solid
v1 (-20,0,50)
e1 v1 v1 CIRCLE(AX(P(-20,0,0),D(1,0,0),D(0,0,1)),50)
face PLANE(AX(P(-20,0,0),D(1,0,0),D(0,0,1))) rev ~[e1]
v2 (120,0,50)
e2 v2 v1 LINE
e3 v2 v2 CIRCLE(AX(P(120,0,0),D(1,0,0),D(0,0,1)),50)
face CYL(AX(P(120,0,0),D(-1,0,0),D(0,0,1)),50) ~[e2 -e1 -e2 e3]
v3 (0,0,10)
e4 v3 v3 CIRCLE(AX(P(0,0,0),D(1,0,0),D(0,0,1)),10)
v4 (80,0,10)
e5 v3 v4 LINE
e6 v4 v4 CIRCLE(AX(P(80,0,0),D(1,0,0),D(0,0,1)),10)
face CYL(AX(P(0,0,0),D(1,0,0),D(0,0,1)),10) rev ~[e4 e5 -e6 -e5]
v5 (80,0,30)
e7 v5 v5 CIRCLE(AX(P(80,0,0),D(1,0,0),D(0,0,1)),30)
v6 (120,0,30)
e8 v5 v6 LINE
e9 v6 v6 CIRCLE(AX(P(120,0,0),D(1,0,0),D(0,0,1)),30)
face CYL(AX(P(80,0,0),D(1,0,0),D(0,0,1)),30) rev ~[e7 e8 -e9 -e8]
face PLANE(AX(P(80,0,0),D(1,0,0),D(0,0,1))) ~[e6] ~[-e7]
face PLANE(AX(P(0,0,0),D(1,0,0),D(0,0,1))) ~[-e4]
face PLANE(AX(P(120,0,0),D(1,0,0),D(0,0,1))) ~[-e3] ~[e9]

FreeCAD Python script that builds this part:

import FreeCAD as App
import Part
import Sketcher
from FreeCAD import Vector


def add_polygon(sketch, points):
    """Adds a closed chain of lines whose ends are joined by coincident constraints."""
    first, n = sketch.GeometryCount, len(points)
    for a, b in zip(points, points[1:] + points[:1]):
        sketch.addGeometry(Part.LineSegment(App.Vector(*a, 0), App.Vector(*b, 0)), False)
    for i in range(n):
        sketch.addConstraint(Sketcher.Constraint("Coincident", first + i, 2, first + (i + 1) % n, 1))

doc = App.newDocument("Part")
body = doc.addObject("PartDesign::Body", "Body")

# Sketch on XY plane
sketch1 = body.newObject("Sketcher::SketchObject", "Sketch")
sketch1.AttachmentSupport = (doc.getObject("XY_Plane"), [""])
sketch1.MapMode = "FlatFace"
add_polygon(sketch1, [(-20, 50), (-20, 0), (0, 0), (0, 10), (80, 10), (80, 30), (120, 30), (120, 50)])  # lines 0-7
sketch1.addConstraint([
    Sketcher.Constraint("Vertical", 0),
    Sketcher.Constraint("Horizontal", 1),
    Sketcher.Constraint("Vertical", 2),
    Sketcher.Constraint("Horizontal", 3),
    Sketcher.Constraint("Vertical", 4),
    Sketcher.Constraint("Horizontal", 5),
    Sketcher.Constraint("Vertical", 6),
    Sketcher.Constraint("Horizontal", 7),
    Sketcher.Constraint("Coincident", 1, 2, -1, 1),
    Sketcher.Constraint("Equal", 1, 4),
    Sketcher.Constraint("Equal", 4, 6),
    Sketcher.Constraint("DistanceX", 1, 1, 1, 2, 20.0),
    Sketcher.Constraint("DistanceX", 3, 1, 3, 2, 80.0),
    Sketcher.Constraint("DistanceX", 5, 1, 5, 2, 40.0),
    Sketcher.Constraint("DistanceY", 0, 2, 0, 1, 50.0),
])
revolution = body.newObject("PartDesign::Revolution", "Revolution")
revolution.Profile = sketch1
revolution.ReferenceAxis = (sketch1, ["H_Axis"])
revolution.Angle = 360

doc.recompute()
